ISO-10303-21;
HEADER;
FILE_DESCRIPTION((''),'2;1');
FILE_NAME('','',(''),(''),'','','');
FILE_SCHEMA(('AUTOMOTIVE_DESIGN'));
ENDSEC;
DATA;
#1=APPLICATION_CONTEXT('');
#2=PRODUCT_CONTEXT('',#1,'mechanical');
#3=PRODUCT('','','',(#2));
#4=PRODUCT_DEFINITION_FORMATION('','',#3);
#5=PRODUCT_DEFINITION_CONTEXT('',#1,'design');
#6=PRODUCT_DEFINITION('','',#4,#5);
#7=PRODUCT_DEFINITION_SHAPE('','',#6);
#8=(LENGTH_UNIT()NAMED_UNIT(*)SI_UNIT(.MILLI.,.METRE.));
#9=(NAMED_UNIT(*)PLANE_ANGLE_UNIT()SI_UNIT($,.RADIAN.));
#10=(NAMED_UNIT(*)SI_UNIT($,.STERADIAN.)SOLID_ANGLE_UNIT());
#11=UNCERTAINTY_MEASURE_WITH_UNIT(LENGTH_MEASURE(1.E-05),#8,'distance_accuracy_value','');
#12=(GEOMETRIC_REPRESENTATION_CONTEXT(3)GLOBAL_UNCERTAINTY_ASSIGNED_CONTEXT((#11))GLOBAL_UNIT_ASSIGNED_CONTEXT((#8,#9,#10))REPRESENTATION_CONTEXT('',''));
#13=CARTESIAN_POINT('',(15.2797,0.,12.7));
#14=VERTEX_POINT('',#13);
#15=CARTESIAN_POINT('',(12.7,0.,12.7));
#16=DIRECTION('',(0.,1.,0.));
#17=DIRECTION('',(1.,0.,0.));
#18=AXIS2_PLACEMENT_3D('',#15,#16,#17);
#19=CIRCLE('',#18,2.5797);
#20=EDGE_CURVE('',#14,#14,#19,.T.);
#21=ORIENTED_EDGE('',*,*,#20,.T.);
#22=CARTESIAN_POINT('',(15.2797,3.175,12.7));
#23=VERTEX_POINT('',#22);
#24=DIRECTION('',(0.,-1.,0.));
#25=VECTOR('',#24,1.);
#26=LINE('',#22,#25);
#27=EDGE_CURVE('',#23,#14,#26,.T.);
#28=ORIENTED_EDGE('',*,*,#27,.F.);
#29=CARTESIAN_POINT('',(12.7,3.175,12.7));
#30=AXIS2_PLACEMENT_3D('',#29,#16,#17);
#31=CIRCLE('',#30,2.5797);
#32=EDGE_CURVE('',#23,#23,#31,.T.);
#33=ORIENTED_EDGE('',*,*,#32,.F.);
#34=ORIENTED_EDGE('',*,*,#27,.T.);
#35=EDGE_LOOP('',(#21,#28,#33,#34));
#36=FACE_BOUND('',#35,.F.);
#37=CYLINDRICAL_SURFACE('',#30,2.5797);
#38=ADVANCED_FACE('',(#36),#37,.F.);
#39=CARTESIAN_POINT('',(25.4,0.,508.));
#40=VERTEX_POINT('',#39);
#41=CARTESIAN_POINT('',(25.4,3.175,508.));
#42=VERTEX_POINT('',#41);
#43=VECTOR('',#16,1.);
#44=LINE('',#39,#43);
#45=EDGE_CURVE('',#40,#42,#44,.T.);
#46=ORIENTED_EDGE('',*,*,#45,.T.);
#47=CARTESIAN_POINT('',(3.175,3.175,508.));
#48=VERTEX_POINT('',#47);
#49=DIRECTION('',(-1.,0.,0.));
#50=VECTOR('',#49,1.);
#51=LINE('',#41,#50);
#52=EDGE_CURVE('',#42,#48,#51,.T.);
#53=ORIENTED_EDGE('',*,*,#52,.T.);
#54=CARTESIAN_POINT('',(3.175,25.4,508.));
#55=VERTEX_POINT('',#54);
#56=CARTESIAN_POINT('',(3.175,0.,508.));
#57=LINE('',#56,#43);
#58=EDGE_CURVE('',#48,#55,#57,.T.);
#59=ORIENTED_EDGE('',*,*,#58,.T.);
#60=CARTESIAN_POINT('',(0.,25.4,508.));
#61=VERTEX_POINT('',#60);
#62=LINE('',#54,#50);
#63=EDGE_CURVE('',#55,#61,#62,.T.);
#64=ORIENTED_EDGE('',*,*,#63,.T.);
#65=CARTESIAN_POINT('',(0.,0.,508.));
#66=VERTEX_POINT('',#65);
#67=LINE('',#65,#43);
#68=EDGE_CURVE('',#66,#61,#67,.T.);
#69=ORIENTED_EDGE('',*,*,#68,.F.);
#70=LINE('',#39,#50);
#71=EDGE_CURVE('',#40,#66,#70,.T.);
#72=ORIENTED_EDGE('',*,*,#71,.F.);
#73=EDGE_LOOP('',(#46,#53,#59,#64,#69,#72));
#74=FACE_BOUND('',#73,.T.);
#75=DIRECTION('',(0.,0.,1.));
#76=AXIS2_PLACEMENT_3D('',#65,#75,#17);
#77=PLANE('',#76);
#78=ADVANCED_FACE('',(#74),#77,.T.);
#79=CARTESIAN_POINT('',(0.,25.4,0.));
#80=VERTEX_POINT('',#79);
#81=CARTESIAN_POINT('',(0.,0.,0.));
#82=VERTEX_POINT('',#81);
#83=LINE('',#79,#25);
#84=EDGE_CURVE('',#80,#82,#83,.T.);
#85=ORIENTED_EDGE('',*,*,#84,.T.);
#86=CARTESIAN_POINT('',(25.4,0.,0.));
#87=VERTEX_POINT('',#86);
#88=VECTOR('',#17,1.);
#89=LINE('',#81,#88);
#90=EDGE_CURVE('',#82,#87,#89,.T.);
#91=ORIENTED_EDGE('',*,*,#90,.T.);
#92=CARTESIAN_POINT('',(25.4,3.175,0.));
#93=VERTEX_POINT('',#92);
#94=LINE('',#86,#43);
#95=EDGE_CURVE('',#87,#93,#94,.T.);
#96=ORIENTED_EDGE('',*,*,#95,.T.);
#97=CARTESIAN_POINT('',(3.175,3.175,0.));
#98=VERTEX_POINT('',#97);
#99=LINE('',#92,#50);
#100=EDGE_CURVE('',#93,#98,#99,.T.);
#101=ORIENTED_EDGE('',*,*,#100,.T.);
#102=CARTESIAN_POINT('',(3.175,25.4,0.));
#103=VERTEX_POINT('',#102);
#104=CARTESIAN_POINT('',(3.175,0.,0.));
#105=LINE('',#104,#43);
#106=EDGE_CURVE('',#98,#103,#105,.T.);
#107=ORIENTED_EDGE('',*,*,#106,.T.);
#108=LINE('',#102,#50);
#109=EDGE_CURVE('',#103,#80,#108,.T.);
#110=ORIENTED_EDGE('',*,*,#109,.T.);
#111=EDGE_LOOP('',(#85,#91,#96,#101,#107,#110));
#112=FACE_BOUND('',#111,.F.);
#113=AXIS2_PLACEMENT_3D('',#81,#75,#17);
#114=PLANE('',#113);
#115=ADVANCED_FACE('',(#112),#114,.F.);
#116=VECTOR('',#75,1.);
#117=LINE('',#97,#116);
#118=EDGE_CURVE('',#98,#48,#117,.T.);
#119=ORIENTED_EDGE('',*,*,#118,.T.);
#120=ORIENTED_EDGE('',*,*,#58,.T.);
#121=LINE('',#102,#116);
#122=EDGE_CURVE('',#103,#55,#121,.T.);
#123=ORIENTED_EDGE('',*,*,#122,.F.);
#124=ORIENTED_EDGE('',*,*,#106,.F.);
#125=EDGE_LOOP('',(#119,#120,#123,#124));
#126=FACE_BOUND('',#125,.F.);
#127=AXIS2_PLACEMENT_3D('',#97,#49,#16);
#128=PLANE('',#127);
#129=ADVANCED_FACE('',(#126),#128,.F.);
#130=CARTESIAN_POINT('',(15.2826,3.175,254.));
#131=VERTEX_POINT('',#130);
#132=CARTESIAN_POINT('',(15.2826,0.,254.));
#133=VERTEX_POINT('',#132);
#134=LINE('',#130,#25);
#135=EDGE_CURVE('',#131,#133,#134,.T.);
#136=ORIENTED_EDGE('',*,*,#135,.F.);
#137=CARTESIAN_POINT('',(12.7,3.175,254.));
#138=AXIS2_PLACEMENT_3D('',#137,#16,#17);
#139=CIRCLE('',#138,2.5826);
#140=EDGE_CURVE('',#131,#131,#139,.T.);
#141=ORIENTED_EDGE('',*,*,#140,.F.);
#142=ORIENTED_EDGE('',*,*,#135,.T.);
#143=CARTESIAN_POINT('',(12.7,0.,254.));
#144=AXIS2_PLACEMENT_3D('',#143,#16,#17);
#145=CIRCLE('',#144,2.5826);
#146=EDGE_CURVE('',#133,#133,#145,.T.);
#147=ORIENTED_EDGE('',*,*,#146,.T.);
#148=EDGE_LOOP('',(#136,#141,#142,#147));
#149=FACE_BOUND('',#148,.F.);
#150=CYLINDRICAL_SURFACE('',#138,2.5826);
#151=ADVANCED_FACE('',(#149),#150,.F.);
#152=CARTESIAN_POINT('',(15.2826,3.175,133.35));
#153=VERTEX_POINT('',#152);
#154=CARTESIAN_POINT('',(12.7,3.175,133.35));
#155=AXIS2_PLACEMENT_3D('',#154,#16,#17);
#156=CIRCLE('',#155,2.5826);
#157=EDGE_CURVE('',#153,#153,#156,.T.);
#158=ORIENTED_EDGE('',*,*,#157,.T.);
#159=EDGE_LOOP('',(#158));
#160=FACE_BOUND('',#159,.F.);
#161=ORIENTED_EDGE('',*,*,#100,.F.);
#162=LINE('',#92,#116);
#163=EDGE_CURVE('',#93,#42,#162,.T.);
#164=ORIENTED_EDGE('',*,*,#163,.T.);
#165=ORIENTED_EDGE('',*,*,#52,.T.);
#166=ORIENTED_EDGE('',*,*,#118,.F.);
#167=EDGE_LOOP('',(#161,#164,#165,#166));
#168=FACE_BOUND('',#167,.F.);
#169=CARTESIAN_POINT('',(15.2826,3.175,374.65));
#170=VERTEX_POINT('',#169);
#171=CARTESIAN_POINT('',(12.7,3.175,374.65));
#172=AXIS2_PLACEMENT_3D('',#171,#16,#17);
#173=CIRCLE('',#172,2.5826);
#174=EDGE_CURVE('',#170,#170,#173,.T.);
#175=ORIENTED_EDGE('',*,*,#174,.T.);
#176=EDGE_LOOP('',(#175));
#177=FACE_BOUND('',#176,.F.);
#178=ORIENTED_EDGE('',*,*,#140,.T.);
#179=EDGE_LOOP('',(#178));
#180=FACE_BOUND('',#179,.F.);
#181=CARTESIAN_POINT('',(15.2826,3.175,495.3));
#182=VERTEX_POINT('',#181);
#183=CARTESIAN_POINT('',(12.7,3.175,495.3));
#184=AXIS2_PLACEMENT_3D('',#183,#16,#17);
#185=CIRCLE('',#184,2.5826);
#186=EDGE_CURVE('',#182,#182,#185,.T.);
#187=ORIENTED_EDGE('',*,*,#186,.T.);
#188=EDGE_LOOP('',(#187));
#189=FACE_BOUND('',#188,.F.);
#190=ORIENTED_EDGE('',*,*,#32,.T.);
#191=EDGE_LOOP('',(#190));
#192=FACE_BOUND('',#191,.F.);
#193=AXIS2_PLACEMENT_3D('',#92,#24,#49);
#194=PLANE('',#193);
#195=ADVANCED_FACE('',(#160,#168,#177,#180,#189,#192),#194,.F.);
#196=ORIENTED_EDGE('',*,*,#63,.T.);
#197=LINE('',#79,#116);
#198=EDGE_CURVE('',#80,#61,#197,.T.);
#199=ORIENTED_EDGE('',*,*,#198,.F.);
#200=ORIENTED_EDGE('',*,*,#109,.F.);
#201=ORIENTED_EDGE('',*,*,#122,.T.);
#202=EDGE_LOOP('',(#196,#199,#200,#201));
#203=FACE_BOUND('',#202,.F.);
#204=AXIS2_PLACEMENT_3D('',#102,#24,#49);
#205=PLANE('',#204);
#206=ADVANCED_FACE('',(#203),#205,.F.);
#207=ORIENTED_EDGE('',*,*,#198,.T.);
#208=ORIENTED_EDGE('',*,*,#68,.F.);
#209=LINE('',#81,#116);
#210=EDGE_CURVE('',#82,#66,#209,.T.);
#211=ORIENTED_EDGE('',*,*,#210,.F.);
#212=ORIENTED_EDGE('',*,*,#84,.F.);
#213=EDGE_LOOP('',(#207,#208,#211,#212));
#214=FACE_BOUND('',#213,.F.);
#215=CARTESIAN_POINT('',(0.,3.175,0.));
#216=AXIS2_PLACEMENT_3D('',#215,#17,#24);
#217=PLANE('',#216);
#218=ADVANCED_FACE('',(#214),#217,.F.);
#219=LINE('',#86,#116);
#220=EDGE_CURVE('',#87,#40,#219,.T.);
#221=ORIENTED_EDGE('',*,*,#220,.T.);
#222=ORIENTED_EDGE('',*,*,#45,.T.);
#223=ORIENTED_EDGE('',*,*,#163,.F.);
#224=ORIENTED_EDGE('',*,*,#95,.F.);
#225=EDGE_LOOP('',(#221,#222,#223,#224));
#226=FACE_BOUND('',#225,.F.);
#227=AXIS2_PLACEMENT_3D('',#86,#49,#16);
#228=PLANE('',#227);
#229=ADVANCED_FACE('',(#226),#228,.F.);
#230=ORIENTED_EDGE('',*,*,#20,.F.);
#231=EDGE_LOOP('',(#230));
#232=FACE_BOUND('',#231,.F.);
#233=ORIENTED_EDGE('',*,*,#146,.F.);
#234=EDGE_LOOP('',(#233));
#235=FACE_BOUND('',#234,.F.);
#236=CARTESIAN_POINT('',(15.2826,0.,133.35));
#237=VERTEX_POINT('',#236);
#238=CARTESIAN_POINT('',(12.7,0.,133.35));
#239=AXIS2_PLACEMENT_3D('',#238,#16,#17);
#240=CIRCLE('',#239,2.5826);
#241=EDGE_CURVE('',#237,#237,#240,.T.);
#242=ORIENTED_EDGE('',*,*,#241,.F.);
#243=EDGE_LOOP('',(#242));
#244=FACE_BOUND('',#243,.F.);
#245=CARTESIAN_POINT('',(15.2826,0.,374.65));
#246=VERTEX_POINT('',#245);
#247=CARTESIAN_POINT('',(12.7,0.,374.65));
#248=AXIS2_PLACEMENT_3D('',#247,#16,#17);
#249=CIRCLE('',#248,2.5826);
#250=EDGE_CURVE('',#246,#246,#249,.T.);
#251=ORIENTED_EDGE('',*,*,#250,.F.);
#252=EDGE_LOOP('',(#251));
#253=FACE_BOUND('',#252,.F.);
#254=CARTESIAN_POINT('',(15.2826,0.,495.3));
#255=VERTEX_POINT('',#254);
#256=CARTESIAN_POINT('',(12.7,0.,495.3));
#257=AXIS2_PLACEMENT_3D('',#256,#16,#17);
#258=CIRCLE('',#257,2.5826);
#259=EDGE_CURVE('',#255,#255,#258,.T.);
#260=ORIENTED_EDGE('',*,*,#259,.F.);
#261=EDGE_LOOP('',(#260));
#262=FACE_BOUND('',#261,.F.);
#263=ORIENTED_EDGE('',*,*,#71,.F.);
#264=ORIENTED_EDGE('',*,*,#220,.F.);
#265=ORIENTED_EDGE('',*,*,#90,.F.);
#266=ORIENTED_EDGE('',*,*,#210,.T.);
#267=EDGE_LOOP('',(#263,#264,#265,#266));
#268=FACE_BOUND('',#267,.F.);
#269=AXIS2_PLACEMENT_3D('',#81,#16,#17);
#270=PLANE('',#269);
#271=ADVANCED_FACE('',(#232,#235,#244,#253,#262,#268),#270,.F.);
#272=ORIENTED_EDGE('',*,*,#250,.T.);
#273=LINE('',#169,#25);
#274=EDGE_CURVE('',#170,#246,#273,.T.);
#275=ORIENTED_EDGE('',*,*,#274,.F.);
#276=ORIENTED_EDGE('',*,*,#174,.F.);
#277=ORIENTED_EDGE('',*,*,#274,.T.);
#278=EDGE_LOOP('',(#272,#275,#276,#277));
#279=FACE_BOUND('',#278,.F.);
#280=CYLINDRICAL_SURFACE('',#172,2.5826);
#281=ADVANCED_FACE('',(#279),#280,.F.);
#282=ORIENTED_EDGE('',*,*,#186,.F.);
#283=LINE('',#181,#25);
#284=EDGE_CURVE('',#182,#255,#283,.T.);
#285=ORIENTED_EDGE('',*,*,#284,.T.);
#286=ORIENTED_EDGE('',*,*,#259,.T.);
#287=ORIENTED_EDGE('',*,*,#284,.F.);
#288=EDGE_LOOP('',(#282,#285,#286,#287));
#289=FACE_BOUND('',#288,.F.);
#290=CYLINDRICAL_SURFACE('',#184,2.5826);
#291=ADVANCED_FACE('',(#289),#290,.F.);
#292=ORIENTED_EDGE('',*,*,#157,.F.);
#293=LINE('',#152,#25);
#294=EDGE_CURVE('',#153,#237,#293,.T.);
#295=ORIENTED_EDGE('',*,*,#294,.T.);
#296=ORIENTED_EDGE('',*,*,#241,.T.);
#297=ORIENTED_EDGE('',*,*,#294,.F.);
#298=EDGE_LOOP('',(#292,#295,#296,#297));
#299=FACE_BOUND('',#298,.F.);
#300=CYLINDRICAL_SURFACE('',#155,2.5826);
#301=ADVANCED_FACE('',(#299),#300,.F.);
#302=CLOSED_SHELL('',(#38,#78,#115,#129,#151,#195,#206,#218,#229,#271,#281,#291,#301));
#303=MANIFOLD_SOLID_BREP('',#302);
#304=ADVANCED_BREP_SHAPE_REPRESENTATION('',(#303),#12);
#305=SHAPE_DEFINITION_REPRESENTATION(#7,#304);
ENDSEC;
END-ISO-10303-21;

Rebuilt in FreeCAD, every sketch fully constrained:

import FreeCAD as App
import Part
import Sketcher
Q = App.Units.Quantity


def add_polygon(sketch, points):
    """Adds a closed chain of lines whose ends are joined by coincident constraints."""
    first, n = sketch.GeometryCount, len(points)
    for a, b in zip(points, points[1:] + points[:1]):
        sketch.addGeometry(Part.LineSegment(App.Vector(*a, 0), App.Vector(*b, 0)), False)
    for i in range(n):
        sketch.addConstraint(Sketcher.Constraint("Coincident", first + i, 2, first + (i + 1) % n, 1))

doc = App.newDocument("Part")
body = doc.addObject("PartDesign::Body", "Body")

sketch1 = doc.addObject("Sketcher::SketchObject", "Sketch")
body.addObject(sketch1)
sketch1.AttachmentSupport = (doc.XY_Plane, [""])
sketch1.MapMode = "FlatFace"
add_polygon(sketch1, [(0, 0), (25.4, 0), (25.4, 3.2), (3.2, 3.2), (3.2, 25.4), (0, 25.4)])
sketch1.addConstraint(Sketcher.Constraint("Horizontal", 0))
sketch1.addConstraint(Sketcher.Constraint("Vertical", 1))
sketch1.addConstraint(Sketcher.Constraint("Horizontal", 2))
sketch1.addConstraint(Sketcher.Constraint("Vertical", 3))
sketch1.addConstraint(Sketcher.Constraint("Horizontal", 4))
sketch1.addConstraint(Sketcher.Constraint("Vertical", 5))
sketch1.addConstraint(Sketcher.Constraint("Coincident", 5, 2, -1, 1))
sketch1.addConstraint(Sketcher.Constraint("Equal", 4, 1))
sketch1.addConstraint(Sketcher.Constraint("Equal", 2, 3))
sketch1.addConstraint(Sketcher.Constraint("DistanceX", 0, 1, 0, 2, Q("1 in")))
sketch1.addConstraint(Sketcher.Constraint("DistanceX", 4, 2, 4, 1, Q("0.125 in")))
pad1 = doc.addObject("PartDesign::Pad", "Pad")
body.addObject(pad1)
pad1.Profile = sketch1
pad1.Length = Q("20 in")

sketch2 = doc.addObject("Sketcher::SketchObject", "Sketch001")
body.addObject(sketch2)
sketch2.AttachmentSupport = (doc.XZ_Plane, [""])
sketch2.MapMode = "FlatFace"
sketch2.AttachmentOffset = App.Placement(App.Vector(0, 0, -0.125 * 25.4), App.Rotation())
sketch2.addGeometry(Part.Circle(App.Vector(12.7, 12.7, 0), App.Vector(0, 0, 1), 2.6), False)
sketch2.addGeometry(Part.Circle(App.Vector(12.7, 495.3, 0), App.Vector(0, 0, 1), 2.6), False)
sketch2.addGeometry(Part.Circle(App.Vector(12.7, 374.6, 0), App.Vector(0, 0, 1), 2.6), False)
sketch2.addGeometry(Part.Circle(App.Vector(12.7, 254, 0), App.Vector(0, 0, 1), 2.6), False)
sketch2.addGeometry(Part.Circle(App.Vector(12.7, 133.3, 0), App.Vector(0, 0, 1), 2.6), False)
sketch2.addConstraint(Sketcher.Constraint("Equal", 1, 2))
sketch2.addConstraint(Sketcher.Constraint("Equal", 2, 3))
sketch2.addConstraint(Sketcher.Constraint("Equal", 3, 4))
sketch2.addConstraint(Sketcher.Constraint("Vertical", 0, 3, 1, 3))
sketch2.addConstraint(Sketcher.Constraint("Vertical", 1, 3, 2, 3))
sketch2.addConstraint(Sketcher.Constraint("Vertical", 2, 3, 3, 3))
sketch2.addConstraint(Sketcher.Constraint("Vertical", 3, 3, 4, 3))
sketch2.addConstraint(Sketcher.Constraint("DistanceX", -1, 1, 0, 3, Q("0.5 in")))
sketch2.addConstraint(Sketcher.Constraint("DistanceY", -1, 1, 0, 3, Q("0.5 in")))
sketch2.addConstraint(Sketcher.Constraint("Diameter", 0, Q("0.203126 in")))
sketch2.addConstraint(Sketcher.Constraint("DistanceY", -1, 1, 3, 3, Q("10 in")))
sketch2.addConstraint(Sketcher.Constraint("DistanceY", 0, 3, 1, 3, Q("19 in")))
sketch2.addConstraint(Sketcher.Constraint("DistanceY", 4, 3, 2, 3, Q("9.5 in")))
sketch2.addConstraint(Sketcher.Constraint("Diameter", 1, 5.1652))
sketch2.addConstraint(Sketcher.Constraint("DistanceY", -1, 1, 2, 3, Q("14.75 in")))
pocket1 = doc.addObject("PartDesign::Pocket", "Pocket")
body.addObject(pocket1)
pocket1.Profile = sketch2
pocket1.Length = Q("21 in")
pocket1.Reversed = True

doc.recompute()
